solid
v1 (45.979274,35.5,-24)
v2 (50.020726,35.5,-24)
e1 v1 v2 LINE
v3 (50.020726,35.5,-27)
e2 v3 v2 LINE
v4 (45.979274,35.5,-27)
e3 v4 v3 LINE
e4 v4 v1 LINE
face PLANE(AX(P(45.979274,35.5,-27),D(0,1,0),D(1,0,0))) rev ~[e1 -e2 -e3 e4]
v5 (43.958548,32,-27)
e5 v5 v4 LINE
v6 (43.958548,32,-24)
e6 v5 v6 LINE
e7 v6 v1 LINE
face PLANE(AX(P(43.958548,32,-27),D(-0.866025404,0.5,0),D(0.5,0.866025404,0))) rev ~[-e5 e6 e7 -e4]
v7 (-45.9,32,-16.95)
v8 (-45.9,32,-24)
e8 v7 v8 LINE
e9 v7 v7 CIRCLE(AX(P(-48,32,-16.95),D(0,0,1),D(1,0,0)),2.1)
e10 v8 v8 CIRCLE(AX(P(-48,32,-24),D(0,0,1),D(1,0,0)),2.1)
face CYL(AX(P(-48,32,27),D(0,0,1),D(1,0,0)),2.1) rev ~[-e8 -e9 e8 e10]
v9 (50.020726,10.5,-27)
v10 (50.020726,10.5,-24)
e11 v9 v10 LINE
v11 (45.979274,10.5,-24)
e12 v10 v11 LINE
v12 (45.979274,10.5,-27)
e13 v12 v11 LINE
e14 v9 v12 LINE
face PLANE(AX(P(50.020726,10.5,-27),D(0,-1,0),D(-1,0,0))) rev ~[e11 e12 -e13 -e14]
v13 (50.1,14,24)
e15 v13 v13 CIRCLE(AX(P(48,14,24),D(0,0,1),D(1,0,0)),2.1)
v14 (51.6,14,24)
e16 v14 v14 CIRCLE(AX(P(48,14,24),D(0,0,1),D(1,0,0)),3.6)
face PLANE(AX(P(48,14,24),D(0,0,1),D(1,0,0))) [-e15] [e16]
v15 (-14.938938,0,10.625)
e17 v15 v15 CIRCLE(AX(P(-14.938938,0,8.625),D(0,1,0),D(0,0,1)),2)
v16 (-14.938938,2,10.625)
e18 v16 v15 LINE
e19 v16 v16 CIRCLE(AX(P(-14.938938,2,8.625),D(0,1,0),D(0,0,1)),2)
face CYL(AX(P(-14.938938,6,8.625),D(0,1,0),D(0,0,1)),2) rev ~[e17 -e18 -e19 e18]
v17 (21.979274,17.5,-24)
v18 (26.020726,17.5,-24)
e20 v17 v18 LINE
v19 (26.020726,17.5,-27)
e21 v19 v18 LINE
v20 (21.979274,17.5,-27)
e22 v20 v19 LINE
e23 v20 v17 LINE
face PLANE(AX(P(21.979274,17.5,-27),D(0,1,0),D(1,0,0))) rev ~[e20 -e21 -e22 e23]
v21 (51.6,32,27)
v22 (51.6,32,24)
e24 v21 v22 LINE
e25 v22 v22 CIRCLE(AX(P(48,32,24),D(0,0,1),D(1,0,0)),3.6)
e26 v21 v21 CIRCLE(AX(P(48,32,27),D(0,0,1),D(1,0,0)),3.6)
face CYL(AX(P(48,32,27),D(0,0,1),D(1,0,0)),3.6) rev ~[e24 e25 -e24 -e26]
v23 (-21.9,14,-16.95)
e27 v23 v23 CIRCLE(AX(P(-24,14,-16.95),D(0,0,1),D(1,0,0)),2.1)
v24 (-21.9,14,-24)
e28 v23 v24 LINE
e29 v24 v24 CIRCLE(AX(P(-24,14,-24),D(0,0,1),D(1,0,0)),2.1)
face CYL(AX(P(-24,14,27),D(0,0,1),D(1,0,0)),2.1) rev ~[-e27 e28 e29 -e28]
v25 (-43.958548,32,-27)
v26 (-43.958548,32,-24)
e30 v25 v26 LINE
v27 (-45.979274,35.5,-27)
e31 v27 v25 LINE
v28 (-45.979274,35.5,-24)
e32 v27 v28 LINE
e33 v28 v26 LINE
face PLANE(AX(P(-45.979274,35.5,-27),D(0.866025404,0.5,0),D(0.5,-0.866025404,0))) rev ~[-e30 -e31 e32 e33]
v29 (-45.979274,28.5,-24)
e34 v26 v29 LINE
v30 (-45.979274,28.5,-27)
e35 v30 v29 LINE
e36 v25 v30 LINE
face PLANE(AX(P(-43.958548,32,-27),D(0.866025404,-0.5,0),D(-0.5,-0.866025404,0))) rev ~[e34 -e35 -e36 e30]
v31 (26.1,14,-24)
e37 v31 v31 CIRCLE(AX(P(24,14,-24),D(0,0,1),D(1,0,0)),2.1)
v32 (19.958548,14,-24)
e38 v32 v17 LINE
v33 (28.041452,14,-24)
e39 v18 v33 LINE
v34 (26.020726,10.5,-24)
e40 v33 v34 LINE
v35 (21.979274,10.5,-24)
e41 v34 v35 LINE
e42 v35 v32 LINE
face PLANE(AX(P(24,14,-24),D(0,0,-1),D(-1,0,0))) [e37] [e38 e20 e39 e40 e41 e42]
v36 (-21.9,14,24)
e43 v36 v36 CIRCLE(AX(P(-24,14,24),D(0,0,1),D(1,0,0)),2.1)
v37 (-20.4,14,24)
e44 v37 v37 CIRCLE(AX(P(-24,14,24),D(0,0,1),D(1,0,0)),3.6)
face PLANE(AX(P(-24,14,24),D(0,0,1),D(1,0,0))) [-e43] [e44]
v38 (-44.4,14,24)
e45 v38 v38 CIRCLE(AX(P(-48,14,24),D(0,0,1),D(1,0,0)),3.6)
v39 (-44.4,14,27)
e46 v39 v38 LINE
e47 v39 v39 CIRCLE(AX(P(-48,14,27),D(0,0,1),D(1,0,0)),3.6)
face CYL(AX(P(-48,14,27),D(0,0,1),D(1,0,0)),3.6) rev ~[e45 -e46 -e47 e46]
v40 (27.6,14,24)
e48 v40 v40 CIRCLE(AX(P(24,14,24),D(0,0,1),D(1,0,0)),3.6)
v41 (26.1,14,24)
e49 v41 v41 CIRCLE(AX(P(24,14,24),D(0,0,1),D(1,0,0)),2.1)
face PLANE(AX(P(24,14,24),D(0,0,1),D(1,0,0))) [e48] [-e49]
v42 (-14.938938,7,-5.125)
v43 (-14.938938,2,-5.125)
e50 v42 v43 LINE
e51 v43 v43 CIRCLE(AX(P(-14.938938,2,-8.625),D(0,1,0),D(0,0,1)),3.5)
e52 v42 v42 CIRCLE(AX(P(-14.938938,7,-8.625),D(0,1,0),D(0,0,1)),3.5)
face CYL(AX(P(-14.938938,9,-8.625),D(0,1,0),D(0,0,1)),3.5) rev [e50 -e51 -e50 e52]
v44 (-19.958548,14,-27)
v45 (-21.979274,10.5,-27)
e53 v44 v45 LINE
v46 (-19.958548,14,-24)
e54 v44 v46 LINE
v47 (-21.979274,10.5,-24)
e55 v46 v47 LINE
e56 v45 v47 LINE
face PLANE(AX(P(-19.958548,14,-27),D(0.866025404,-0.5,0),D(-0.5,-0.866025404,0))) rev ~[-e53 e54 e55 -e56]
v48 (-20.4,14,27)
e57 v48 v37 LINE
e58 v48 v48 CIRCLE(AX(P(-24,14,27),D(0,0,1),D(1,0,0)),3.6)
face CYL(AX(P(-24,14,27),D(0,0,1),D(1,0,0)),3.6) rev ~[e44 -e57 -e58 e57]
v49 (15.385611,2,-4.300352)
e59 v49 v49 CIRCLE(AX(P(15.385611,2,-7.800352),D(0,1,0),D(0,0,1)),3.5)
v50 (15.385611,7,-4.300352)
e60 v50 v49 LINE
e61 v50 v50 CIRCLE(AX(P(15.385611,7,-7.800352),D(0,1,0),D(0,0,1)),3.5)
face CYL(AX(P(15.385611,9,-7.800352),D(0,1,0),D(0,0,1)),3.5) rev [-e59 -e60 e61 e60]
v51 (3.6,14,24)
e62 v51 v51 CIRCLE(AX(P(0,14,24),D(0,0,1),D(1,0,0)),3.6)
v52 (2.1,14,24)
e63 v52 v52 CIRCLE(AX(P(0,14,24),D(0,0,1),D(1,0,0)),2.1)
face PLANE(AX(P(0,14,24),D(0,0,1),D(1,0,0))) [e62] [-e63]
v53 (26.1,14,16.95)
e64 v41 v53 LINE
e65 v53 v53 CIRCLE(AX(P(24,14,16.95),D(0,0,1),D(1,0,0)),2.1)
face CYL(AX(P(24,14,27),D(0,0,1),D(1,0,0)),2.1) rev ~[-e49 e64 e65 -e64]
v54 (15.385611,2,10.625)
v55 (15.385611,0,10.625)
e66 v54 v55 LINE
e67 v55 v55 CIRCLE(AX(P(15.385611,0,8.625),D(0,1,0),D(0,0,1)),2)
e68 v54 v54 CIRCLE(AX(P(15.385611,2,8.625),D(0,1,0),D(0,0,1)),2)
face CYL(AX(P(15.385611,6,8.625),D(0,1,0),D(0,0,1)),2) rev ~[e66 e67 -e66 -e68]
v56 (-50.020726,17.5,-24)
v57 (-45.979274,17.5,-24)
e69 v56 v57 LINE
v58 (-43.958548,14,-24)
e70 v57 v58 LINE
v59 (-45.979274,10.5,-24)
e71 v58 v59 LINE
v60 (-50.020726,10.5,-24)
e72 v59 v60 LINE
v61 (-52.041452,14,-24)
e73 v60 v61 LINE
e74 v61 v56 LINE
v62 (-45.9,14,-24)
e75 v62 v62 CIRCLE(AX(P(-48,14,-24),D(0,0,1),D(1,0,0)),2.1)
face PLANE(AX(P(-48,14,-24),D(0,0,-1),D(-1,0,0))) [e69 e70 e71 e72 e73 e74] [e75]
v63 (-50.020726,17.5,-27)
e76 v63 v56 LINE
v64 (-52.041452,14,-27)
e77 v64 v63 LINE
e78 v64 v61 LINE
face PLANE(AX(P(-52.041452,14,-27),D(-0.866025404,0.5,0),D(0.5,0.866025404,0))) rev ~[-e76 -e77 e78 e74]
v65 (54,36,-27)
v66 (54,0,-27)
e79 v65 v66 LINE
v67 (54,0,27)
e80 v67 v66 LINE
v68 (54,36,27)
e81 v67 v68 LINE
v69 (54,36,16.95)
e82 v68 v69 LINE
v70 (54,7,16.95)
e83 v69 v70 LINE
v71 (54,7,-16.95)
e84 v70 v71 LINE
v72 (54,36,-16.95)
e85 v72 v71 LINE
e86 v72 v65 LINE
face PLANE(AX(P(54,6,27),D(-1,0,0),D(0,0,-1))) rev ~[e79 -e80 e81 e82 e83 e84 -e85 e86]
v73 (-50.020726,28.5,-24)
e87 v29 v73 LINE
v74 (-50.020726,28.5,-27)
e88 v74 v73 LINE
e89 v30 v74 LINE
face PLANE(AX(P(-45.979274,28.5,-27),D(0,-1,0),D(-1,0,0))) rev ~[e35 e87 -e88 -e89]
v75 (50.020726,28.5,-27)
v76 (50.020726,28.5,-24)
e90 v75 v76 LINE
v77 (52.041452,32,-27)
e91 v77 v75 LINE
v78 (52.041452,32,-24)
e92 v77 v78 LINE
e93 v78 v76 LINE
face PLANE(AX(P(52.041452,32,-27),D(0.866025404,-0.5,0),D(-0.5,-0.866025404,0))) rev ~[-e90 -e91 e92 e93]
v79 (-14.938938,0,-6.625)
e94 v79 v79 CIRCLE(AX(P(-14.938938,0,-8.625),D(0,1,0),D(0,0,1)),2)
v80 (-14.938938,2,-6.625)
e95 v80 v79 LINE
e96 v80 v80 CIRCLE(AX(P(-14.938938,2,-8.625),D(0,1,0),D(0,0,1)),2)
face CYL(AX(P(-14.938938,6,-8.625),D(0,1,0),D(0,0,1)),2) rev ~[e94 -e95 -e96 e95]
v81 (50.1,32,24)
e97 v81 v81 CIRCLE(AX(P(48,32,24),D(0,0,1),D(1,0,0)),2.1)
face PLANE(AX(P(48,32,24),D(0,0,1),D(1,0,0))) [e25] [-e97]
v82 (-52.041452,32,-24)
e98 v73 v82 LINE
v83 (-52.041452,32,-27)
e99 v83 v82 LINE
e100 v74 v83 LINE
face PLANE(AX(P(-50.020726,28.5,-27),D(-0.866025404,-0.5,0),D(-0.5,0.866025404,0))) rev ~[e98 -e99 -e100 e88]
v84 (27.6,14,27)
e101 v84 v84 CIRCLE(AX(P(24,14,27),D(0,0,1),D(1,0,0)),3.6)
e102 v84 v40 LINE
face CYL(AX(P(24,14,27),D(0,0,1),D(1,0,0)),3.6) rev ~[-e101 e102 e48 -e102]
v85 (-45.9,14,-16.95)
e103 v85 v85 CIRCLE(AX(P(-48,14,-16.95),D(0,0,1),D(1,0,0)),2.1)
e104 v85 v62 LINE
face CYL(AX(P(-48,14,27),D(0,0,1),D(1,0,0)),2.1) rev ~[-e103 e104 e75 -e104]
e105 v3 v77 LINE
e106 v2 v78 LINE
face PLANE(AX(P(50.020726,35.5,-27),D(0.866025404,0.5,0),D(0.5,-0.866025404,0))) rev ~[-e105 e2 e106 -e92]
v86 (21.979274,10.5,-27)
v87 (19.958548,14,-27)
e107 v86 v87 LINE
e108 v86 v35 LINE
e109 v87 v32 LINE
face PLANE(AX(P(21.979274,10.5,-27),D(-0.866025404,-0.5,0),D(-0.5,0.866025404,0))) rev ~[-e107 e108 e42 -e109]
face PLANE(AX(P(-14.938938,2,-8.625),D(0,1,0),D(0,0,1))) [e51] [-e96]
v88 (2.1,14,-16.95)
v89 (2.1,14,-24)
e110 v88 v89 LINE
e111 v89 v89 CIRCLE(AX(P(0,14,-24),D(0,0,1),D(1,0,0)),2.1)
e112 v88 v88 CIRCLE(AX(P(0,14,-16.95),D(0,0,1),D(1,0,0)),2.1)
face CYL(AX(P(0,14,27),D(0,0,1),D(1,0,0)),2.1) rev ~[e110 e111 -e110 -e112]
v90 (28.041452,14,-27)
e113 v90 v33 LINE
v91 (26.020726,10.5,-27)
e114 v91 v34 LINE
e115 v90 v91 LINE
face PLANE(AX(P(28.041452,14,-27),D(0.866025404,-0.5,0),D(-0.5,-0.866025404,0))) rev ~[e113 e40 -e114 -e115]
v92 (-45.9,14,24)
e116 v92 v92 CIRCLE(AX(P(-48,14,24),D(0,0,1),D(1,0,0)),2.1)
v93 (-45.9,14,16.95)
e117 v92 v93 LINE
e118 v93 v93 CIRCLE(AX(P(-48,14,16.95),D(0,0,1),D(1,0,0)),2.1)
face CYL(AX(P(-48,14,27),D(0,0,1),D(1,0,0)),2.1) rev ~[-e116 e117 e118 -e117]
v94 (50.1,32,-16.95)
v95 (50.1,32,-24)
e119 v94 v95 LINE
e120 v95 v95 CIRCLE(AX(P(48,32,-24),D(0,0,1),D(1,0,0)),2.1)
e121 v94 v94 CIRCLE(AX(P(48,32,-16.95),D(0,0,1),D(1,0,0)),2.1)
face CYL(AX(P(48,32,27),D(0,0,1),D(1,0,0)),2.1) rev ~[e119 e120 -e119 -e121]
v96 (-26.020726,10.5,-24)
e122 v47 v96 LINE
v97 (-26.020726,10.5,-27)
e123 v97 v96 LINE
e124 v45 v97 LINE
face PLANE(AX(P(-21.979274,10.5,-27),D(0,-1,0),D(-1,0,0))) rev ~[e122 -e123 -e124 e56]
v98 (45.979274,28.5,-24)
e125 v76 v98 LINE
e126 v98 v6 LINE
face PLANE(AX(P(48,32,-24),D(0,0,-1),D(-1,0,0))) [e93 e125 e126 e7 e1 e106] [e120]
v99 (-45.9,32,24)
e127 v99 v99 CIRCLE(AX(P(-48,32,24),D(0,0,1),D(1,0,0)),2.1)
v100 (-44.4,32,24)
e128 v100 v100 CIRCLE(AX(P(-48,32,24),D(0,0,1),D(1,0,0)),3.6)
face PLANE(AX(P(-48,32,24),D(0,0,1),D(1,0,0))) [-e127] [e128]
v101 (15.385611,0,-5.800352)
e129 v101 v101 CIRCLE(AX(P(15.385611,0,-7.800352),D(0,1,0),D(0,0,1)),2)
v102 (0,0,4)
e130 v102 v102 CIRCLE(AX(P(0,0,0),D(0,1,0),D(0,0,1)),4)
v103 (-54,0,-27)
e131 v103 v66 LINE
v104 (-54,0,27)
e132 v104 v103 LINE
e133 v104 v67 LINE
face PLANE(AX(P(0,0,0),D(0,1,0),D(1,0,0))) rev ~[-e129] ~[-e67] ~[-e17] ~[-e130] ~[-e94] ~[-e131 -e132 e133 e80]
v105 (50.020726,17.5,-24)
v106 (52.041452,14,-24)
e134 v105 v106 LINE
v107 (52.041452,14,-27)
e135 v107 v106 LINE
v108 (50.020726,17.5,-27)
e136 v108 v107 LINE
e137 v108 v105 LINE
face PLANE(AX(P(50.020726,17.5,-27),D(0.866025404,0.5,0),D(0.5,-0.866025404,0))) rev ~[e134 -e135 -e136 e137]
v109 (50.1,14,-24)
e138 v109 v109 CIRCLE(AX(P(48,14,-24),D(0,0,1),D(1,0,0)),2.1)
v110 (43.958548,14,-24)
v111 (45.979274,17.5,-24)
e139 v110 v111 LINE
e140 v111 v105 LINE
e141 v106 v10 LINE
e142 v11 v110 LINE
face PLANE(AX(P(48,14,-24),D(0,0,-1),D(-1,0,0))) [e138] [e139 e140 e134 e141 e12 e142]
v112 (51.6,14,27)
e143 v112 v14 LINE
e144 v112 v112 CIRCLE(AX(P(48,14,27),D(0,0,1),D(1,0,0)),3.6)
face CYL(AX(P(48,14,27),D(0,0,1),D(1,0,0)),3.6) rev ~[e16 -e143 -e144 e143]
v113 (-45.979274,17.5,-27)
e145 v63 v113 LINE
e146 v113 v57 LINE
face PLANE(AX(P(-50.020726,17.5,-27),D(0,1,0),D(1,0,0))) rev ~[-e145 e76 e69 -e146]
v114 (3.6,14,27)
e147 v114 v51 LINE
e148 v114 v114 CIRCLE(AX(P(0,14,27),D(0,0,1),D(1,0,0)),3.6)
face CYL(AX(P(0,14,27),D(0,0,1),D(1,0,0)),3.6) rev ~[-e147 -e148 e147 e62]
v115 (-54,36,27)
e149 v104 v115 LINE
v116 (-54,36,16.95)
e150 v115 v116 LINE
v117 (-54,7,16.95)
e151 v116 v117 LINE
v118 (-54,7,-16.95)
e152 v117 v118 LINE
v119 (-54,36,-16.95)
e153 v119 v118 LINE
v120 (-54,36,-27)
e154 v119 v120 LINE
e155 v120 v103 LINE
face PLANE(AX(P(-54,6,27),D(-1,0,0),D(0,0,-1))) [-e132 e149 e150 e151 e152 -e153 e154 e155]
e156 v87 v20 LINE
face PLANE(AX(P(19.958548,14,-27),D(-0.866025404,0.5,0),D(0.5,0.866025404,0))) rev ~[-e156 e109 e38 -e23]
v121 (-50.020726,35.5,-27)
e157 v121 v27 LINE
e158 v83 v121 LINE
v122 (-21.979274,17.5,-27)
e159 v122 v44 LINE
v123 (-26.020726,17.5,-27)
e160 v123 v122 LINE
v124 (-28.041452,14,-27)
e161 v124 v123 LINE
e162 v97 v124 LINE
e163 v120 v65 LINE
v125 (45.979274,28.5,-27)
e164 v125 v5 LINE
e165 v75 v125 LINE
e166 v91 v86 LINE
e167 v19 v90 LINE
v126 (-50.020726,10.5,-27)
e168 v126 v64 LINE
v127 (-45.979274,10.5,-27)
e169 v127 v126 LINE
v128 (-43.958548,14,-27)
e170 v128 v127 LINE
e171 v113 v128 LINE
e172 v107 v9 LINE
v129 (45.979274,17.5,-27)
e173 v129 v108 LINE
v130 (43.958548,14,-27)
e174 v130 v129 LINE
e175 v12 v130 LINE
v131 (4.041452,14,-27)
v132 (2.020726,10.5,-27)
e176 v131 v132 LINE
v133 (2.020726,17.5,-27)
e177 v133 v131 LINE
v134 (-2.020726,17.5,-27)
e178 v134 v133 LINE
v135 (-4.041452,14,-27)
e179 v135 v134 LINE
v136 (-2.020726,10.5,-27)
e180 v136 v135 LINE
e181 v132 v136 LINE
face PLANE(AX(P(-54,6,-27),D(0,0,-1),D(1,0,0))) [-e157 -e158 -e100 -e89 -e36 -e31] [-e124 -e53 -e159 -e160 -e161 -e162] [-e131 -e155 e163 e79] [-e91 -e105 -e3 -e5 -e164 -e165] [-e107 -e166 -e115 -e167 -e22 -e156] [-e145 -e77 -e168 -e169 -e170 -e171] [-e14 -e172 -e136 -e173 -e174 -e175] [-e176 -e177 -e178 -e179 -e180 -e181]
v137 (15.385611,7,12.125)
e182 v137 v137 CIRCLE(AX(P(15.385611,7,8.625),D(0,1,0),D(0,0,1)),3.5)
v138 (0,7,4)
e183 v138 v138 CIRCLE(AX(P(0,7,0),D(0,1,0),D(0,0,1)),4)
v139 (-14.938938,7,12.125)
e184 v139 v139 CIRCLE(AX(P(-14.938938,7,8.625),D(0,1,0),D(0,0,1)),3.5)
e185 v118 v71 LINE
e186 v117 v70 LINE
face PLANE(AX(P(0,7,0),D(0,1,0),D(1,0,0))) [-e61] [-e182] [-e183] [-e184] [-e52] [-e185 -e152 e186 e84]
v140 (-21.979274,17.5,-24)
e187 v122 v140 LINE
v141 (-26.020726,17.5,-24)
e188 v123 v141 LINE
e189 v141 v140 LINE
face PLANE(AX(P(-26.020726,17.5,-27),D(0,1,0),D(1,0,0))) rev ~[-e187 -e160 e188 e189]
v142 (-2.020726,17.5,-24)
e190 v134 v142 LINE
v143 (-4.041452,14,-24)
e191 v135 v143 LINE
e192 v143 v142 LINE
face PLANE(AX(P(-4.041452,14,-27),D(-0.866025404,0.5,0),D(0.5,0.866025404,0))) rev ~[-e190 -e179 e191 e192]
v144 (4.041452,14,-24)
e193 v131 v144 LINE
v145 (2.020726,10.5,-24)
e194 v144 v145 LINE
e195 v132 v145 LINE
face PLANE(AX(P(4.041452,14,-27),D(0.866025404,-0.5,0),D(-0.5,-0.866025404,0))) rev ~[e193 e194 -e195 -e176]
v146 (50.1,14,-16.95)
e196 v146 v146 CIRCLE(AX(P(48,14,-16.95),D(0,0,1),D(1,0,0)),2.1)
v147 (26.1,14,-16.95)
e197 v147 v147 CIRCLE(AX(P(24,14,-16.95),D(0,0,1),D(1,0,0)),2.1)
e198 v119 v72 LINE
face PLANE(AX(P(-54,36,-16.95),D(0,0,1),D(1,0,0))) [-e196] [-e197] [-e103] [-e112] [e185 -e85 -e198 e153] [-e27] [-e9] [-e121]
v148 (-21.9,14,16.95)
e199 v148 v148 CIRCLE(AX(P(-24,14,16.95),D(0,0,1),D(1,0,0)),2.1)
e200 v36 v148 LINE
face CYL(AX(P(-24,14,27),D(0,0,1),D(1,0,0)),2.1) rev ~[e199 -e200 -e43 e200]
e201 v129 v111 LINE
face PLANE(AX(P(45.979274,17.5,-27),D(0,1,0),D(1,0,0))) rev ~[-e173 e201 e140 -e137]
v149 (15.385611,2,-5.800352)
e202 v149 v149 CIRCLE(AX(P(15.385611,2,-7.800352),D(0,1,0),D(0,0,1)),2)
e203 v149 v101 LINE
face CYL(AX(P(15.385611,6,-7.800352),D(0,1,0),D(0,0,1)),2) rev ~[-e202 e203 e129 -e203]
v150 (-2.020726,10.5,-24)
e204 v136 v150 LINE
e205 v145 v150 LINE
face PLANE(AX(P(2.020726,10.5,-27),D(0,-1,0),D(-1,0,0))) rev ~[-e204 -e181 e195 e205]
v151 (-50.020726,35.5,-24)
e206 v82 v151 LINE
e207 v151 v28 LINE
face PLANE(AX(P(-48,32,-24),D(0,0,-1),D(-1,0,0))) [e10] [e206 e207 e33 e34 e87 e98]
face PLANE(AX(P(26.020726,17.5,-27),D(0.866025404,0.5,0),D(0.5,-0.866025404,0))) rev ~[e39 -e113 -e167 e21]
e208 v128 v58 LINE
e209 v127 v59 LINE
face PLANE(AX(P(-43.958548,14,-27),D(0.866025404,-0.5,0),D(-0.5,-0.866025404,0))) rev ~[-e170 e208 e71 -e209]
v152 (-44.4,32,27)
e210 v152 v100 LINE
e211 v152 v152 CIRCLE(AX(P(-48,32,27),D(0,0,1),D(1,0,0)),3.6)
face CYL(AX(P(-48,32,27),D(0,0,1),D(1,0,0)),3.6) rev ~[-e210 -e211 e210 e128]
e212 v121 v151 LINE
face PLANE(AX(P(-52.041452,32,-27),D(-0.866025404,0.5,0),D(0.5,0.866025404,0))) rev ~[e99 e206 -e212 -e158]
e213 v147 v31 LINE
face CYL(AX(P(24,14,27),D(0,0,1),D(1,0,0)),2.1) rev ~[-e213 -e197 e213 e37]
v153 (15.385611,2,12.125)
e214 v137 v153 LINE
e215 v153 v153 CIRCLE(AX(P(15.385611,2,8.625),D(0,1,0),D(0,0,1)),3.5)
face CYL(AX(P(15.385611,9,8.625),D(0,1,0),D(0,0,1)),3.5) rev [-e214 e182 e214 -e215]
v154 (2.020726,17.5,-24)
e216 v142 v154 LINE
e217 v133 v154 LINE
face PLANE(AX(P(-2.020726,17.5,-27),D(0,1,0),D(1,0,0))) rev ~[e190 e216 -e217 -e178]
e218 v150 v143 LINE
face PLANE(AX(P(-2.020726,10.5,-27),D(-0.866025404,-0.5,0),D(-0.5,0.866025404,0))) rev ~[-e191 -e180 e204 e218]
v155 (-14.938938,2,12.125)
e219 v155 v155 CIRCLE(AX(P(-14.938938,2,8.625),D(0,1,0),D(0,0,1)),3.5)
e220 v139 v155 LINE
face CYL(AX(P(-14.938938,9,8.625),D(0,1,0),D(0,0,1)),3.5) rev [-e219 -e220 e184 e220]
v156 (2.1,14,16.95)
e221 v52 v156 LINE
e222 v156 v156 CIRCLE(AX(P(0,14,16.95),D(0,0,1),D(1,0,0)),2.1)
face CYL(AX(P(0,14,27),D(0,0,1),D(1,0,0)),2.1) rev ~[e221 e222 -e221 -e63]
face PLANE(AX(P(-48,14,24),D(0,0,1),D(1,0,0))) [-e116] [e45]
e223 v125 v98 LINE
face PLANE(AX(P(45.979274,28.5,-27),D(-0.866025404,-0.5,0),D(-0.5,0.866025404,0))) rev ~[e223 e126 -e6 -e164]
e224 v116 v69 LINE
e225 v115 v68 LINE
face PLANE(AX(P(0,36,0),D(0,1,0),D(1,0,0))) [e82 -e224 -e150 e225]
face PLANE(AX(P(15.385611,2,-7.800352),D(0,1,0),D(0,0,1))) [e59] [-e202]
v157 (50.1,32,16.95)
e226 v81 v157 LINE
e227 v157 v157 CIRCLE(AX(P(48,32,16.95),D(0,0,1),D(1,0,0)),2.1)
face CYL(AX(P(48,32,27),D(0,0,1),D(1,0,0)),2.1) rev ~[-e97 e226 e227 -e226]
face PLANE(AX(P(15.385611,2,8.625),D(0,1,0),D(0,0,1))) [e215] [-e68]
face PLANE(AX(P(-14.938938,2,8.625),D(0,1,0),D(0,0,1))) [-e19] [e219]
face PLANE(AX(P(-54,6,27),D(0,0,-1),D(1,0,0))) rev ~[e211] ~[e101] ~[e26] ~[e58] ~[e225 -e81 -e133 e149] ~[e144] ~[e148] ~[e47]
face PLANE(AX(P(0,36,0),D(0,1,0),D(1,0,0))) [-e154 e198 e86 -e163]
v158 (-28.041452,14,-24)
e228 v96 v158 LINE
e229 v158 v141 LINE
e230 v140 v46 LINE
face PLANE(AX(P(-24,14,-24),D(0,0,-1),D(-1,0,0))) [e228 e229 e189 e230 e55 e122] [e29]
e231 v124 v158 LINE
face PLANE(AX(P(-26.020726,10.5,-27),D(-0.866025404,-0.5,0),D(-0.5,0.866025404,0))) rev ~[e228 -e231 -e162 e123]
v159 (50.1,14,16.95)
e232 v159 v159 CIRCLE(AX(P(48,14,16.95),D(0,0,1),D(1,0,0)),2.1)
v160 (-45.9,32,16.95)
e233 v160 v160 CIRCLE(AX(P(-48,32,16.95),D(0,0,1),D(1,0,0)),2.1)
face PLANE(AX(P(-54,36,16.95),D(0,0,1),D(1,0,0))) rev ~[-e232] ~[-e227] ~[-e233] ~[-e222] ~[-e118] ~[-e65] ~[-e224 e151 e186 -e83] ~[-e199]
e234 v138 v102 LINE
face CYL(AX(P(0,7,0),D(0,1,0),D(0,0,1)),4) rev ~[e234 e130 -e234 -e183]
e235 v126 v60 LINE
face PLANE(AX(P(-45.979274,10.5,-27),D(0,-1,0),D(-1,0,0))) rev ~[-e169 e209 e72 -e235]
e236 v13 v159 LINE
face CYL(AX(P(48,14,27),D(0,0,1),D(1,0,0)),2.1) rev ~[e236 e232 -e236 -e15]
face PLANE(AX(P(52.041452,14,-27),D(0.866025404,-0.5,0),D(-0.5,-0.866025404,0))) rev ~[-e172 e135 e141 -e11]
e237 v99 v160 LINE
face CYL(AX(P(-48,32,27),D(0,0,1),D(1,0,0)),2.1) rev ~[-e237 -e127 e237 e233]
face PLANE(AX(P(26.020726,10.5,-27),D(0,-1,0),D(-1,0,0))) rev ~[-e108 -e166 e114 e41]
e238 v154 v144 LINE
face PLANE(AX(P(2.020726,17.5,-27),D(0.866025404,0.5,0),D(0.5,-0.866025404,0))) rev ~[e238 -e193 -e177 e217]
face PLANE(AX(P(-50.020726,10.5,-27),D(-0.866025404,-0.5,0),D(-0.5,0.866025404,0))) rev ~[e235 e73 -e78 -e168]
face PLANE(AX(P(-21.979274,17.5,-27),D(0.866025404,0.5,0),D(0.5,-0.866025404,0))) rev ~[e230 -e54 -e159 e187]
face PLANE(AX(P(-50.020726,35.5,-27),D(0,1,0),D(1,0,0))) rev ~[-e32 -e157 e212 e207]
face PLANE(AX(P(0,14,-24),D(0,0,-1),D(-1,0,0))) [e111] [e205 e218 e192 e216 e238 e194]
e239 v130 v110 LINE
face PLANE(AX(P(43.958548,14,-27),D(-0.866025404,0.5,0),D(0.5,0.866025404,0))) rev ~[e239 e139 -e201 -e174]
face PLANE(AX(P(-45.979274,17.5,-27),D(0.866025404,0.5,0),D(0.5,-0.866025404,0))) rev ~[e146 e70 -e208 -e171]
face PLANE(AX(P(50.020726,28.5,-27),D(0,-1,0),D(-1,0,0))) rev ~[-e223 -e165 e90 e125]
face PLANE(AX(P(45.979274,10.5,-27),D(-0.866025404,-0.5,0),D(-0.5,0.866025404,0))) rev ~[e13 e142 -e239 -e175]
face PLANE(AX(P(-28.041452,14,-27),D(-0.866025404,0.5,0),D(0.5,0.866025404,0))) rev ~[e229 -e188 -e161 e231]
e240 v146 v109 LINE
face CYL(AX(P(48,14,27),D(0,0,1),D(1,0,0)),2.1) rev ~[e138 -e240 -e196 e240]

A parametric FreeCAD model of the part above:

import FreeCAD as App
import Part
import Sketcher

V = App.Vector
Q = App.Units.Quantity

doc = App.newDocument("Part")
body = doc.addObject("PartDesign::Body", "Body")

# Sketch on XZ plane
sketch1 = doc.addObject("Sketcher::SketchObject", "Sketch")
body.addObject(sketch1)
sketch1.AttachmentSupport = (doc.XZ_Plane, [""])
sketch1.MapMode = "FlatFace"
sketch1.addGeometry([
    Part.LineSegment(V(-54, -27, 0), V(-54, 27, 0)),
    Part.LineSegment(V(-54, 27, 0), V(54, 27, 0)),
    Part.LineSegment(V(54, 27, 0), V(54, -27, 0)),
    Part.LineSegment(V(54, -27, 0), V(-54, -27, 0)),
], False)
sketch1.addConstraint([
    Sketcher.Constraint("Coincident", 0, 2, 1, 1),
    Sketcher.Constraint("Coincident", 1, 2, 2, 1),
    Sketcher.Constraint("Coincident", 2, 2, 3, 1),
    Sketcher.Constraint("Coincident", 3, 2, 0, 1),
    Sketcher.Constraint("Vertical", 0),
    Sketcher.Constraint("Horizontal", 1),
    Sketcher.Constraint("Vertical", 2),
    Sketcher.Constraint("Horizontal", 3),
    Sketcher.Constraint("Symmetric", 0, 2, 2, 2, -1, 1),
    Sketcher.Constraint("DistanceX", 1, 1, 1, 2, Q("108 mm")),
    Sketcher.Constraint("DistanceY", 0, 1, 0, 2, Q("54 mm")),
])
pad1 = doc.addObject("PartDesign::Pad", "Pad")
body.addObject(pad1)
pad1.Profile = sketch1
pad1.Length = 6
pad1.Reversed = True

# Sketch on XZ plane
sketch2 = doc.addObject("Sketcher::SketchObject", "Sketch001")
body.addObject(sketch2)
sketch2.AttachmentSupport = (doc.XZ_Plane, [""])
sketch2.MapMode = "FlatFace"
sketch2.AttachmentOffset = App.Placement(V(0, 0, -6), App.Rotation())
sketch2.addGeometry([
    Part.Circle(V(-14.9, -8.6, 0), V(0, 0, 1), 2),
    Part.Circle(V(-14.9, 8.6, 0), V(0, 0, 1), 2),
    Part.Circle(V(15.4, -7.8, 0), V(0, 0, 1), 2),
    Part.Circle(V(15.4, 8.6, 0), V(0, 0, 1), 2),
], False)
sketch2.addConstraint([
    Sketcher.Constraint("Equal", 0, 1),
    Sketcher.Constraint("Equal", 1, 2),
    Sketcher.Constraint("Equal", 2, 3),
    Sketcher.Constraint("Symmetric", 0, 3, 1, 3, -1),
    Sketcher.Constraint("Horizontal", 1, 3, 3, 3),
    Sketcher.Constraint("Vertical", 2, 3, 3, 3),
    Sketcher.Constraint("Diameter", 0, Q("4 mm")),
    Sketcher.Constraint("DistanceY", 0, 3, 1, 3, Q("17.25 mm")),
    Sketcher.Constraint("DistanceX", 0, 3, -1, 1, Q("14.938938 mm")),
    Sketcher.Constraint("DistanceX", -1, 1, 2, 3, Q("15.385611 mm")),
    Sketcher.Constraint("DistanceY", 2, 3, -1, 1, Q("7.800352 mm")),
])
pocket1 = doc.addObject("PartDesign::Pocket", "Pocket")
body.addObject(pocket1)
pocket1.Profile = sketch2
pocket1.Length = 12
pocket1.Reversed = True

# Sketch on XZ plane
sketch3 = doc.addObject("Sketcher::SketchObject", "Sketch002")
body.addObject(sketch3)
sketch3.AttachmentSupport = (doc.XZ_Plane, [""])
sketch3.MapMode = "FlatFace"
sketch3.AttachmentOffset = App.Placement(V(0, 0, -6), App.Rotation())
sketch3.addGeometry([
    Part.Circle(V(-14.9, -8.6, 0), V(0, 0, 1), 3.5),
    Part.Circle(V(-14.9, 8.6, 0), V(0, 0, 1), 3.5),
    Part.Circle(V(15.4, -7.8, 0), V(0, 0, 1), 3.5),
    Part.Circle(V(15.4, 8.6, 0), V(0, 0, 1), 3.5),
], False)
sketch3.addConstraint([
    Sketcher.Constraint("Equal", 0, 1),
    Sketcher.Constraint("Equal", 1, 2),
    Sketcher.Constraint("Equal", 2, 3),
    Sketcher.Constraint("Symmetric", 0, 3, 1, 3, -1),
    Sketcher.Constraint("Horizontal", 1, 3, 3, 3),
    Sketcher.Constraint("Vertical", 2, 3, 3, 3),
    Sketcher.Constraint("Diameter", 0, Q("7 mm")),
    Sketcher.Constraint("DistanceY", 0, 3, 1, 3, Q("17.25 mm")),
    Sketcher.Constraint("DistanceX", 0, 3, -1, 1, Q("14.938938 mm")),
    Sketcher.Constraint("DistanceX", -1, 1, 2, 3, Q("15.385611 mm")),
    Sketcher.Constraint("DistanceY", 2, 3, -1, 1, Q("7.800352 mm")),
])
pocket2 = doc.addObject("PartDesign::Pocket", "Pocket001")
body.addObject(pocket2)
pocket2.Profile = sketch3
pocket2.Length = 4
pocket2.Reversed = True

# Sketch on XZ plane
sketch4 = doc.addObject("Sketcher::SketchObject", "Sketch003")
body.addObject(sketch4)
sketch4.AttachmentSupport = (doc.XZ_Plane, [""])
sketch4.MapMode = "FlatFace"
sketch4.AttachmentOffset = App.Placement(V(0, 0, -6), App.Rotation())
sketch4.addGeometry([
    Part.LineSegment(V(-54, -27, 0), V(-54, 27, 0)),
    Part.LineSegment(V(-54, 27, 0), V(54, 27, 0)),
    Part.LineSegment(V(54, 27, 0), V(54, -27, 0)),
    Part.LineSegment(V(54, -27, 0), V(-54, -27, 0)),
], False)
sketch4.addConstraint([
    Sketcher.Constraint("Coincident", 0, 2, 1, 1),
    Sketcher.Constraint("Coincident", 1, 2, 2, 1),
    Sketcher.Constraint("Coincident", 2, 2, 3, 1),
    Sketcher.Constraint("Coincident", 3, 2, 0, 1),
    Sketcher.Constraint("Vertical", 0),
    Sketcher.Constraint("Horizontal", 1),
    Sketcher.Constraint("Vertical", 2),
    Sketcher.Constraint("Horizontal", 3),
    Sketcher.Constraint("Symmetric", 0, 2, 2, 2, -1, 1),
    Sketcher.Constraint("DistanceX", 1, 1, 1, 2, Q("108 mm")),
    Sketcher.Constraint("DistanceY", 0, 1, 0, 2, Q("54 mm")),
])
pad2 = doc.addObject("PartDesign::Pad", "Pad001")
body.addObject(pad2)
pad2.Profile = sketch4
pad2.Length = 30
pad2.Reversed = True

# Sketch on XZ plane
sketch5 = doc.addObject("Sketcher::SketchObject", "Sketch004")
body.addObject(sketch5)
sketch5.AttachmentSupport = (doc.XZ_Plane, [""])
sketch5.MapMode = "FlatFace"
sketch5.AttachmentOffset = App.Placement(V(0, 0, -36), App.Rotation())
sketch5.addGeometry([
    Part.LineSegment(V(-54, -17, 0), V(-54, 17, 0)),
    Part.LineSegment(V(-54, 17, 0), V(54, 17, 0)),
    Part.LineSegment(V(54, 17, 0), V(54, -17, 0)),
    Part.LineSegment(V(54, -17, 0), V(-54, -17, 0)),
], False)
sketch5.addConstraint([
    Sketcher.Constraint("Coincident", 0, 2, 1, 1),
    Sketcher.Constraint("Coincident", 1, 2, 2, 1),
    Sketcher.Constraint("Coincident", 2, 2, 3, 1),
    Sketcher.Constraint("Coincident", 3, 2, 0, 1),
    Sketcher.Constraint("Vertical", 0),
    Sketcher.Constraint("Horizontal", 1),
    Sketcher.Constraint("Vertical", 2),
    Sketcher.Constraint("Horizontal", 3),
    Sketcher.Constraint("Symmetric", 0, 2, 2, 2, -1, 1),
    Sketcher.Constraint("DistanceX", 1, 1, 1, 2, Q("108 mm")),
    Sketcher.Constraint("DistanceY", 0, 1, 0, 2, Q("33.9 mm")),
])
pocket3 = doc.addObject("PartDesign::Pocket", "Pocket002")
body.addObject(pocket3)
pocket3.Profile = sketch5
pocket3.Length = 29
pocket3.Reversed = True

# Sketch on XY plane
sketch6 = doc.addObject("Sketcher::SketchObject", "Sketch005")
body.addObject(sketch6)
sketch6.AttachmentSupport = (doc.XY_Plane, [""])
sketch6.MapMode = "FlatFace"
sketch6.AttachmentOffset = App.Placement(V(0, 0, 27), App.Rotation())
sketch6.addGeometry([
    Part.Circle(V(0, 14, 0), V(0, 0, 1), 2.1),  # 0
    Part.Circle(V(-24, 14, 0), V(0, 0, 1), 2.1),  # 1
    Part.Circle(V(-48, 14, 0), V(0, 0, 1), 2.1),  # 2
    Part.Circle(V(24, 14, 0), V(0, 0, 1), 2.1),  # 3
    Part.Circle(V(48, 14, 0), V(0, 0, 1), 2.1),  # 4
    Part.Circle(V(48, 32, 0), V(0, 0, 1), 2.1),  # 5
    Part.Circle(V(-48, 32, 0), V(0, 0, 1), 2.1),  # 6
], False)
sketch6.addConstraint([
    Sketcher.Constraint("Equal", 0, 1),
    Sketcher.Constraint("Equal", 1, 2),
    Sketcher.Constraint("Equal", 2, 3),
    Sketcher.Constraint("Equal", 3, 4),
    Sketcher.Constraint("Equal", 4, 5),
    Sketcher.Constraint("Equal", 5, 6),
    Sketcher.Constraint("Symmetric", 1, 3, 3, 3, -2),
    Sketcher.Constraint("Symmetric", 2, 3, 4, 3, -2),
    Sketcher.Constraint("Symmetric", 5, 3, 6, 3, -2),
    Sketcher.Constraint("PointOnObject", 0, 3, -2),
    Sketcher.Constraint("Horizontal", 0, 3, 1, 3),
    Sketcher.Constraint("Horizontal", 1, 3, 2, 3),
    Sketcher.Constraint("Vertical", 4, 3, 5, 3),
    Sketcher.Constraint("Diameter", 0, Q("4.2 mm")),
    Sketcher.Constraint("DistanceY", -1, 1, 0, 3, Q("14 mm")),
    Sketcher.Constraint("DistanceX", 1, 3, -1, 1, Q("24 mm")),
    Sketcher.Constraint("DistanceX", 2, 3, -1, 1, Q("48 mm")),
    Sketcher.Constraint("DistanceY", -1, 1, 5, 3, Q("32 mm")),
])
pocket4 = doc.addObject("PartDesign::Pocket", "Pocket003")
body.addObject(pocket4)
pocket4.Profile = sketch6
pocket4.Length = 67

# Sketch on XY plane
sketch7 = doc.addObject("Sketcher::SketchObject", "Sketch006")
body.addObject(sketch7)
sketch7.AttachmentSupport = (doc.XY_Plane, [""])
sketch7.MapMode = "FlatFace"
sketch7.AttachmentOffset = App.Placement(V(0, 0, 27), App.Rotation())
sketch7.addGeometry([
    Part.Circle(V(-48, 32, 0), V(0, 0, 1), 3.6),  # 0
    Part.Circle(V(-48, 14, 0), V(0, 0, 1), 3.6),  # 1
    Part.Circle(V(-24, 14, 0), V(0, 0, 1), 3.6),  # 2
    Part.Circle(V(0, 14, 0), V(0, 0, 1), 3.6),  # 3
    Part.Circle(V(24, 14, 0), V(0, 0, 1), 3.6),  # 4
    Part.Circle(V(48, 14, 0), V(0, 0, 1), 3.6),  # 5
    Part.Circle(V(48, 32, 0), V(0, 0, 1), 3.6),  # 6
], False)
sketch7.addConstraint([
    Sketcher.Constraint("Equal", 0, 1),
    Sketcher.Constraint("Equal", 1, 2),
    Sketcher.Constraint("Equal", 2, 3),
    Sketcher.Constraint("Equal", 3, 4),
    Sketcher.Constraint("Equal", 4, 5),
    Sketcher.Constraint("Equal", 5, 6),
    Sketcher.Constraint("Symmetric", 2, 3, 4, 3, -2),
    Sketcher.Constraint("Symmetric", 1, 3, 5, 3, -2),
    Sketcher.Constraint("Symmetric", 0, 3, 6, 3, -2),
    Sketcher.Constraint("PointOnObject", 3, 3, -2),
    Sketcher.Constraint("Horizontal", 1, 3, 2, 3),
    Sketcher.Constraint("Horizontal", 2, 3, 3, 3),
    Sketcher.Constraint("Vertical", 0, 3, 1, 3),
    Sketcher.Constraint("Diameter", 0, Q("7.2 mm")),
    Sketcher.Constraint("DistanceX", 0, 3, -1, 1, Q("48 mm")),
    Sketcher.Constraint("DistanceY", -1, 1, 0, 3, Q("32 mm")),
    Sketcher.Constraint("DistanceY", -1, 1, 1, 3, Q("14 mm")),
    Sketcher.Constraint("DistanceX", 2, 3, -1, 1, Q("24 mm")),
])
pocket5 = doc.addObject("PartDesign::Pocket", "Pocket004")
body.addObject(pocket5)
pocket5.Profile = sketch7
pocket5.Length = 3

# Sketch on XY plane
sketch8 = doc.addObject("Sketcher::SketchObject", "Sketch007")
body.addObject(sketch8)
sketch8.AttachmentSupport = (doc.XY_Plane, [""])
sketch8.MapMode = "FlatFace"
sketch8.AttachmentOffset = App.Placement(V(0, 0, -27), App.Rotation())
sketch8.addGeometry([
    Part.LineSegment(V(50, 28.5, 0), V(46, 28.5, 0)),  # 0
    Part.LineSegment(V(46, 28.5, 0), V(44, 32, 0)),  # 1
    Part.LineSegment(V(44, 32, 0), V(46, 35.5, 0)),  # 2
    Part.LineSegment(V(46, 35.5, 0), V(50, 35.5, 0)),  # 3
    Part.LineSegment(V(50, 35.5, 0), V(52, 32, 0)),  # 4
    Part.LineSegment(V(52, 32, 0), V(50, 28.5, 0)),  # 5
    Part.LineSegment(V(50, 10.5, 0), V(46, 10.5, 0)),  # 6
    Part.LineSegment(V(46, 10.5, 0), V(44, 14, 0)),  # 7
    Part.LineSegment(V(44, 14, 0), V(46, 17.5, 0)),  # 8
    Part.LineSegment(V(46, 17.5, 0), V(50, 17.5, 0)),  # 9
    Part.LineSegment(V(50, 17.5, 0), V(52, 14, 0)),  # 10
    Part.LineSegment(V(52, 14, 0), V(50, 10.5, 0)),  # 11
    Part.LineSegment(V(26, 10.5, 0), V(22, 10.5, 0)),  # 12
    Part.LineSegment(V(22, 10.5, 0), V(20, 14, 0)),  # 13
    Part.LineSegment(V(20, 14, 0), V(22, 17.5, 0)),  # 14
    Part.LineSegment(V(22, 17.5, 0), V(26, 17.5, 0)),  # 15
    Part.LineSegment(V(26, 17.5, 0), V(28, 14, 0)),  # 16
    Part.LineSegment(V(28, 14, 0), V(26, 10.5, 0)),  # 17
    Part.LineSegment(V(2, 10.5, 0), V(-2, 10.5, 0)),  # 18
    Part.LineSegment(V(-2, 10.5, 0), V(-4, 14, 0)),  # 19
    Part.LineSegment(V(-4, 14, 0), V(-2, 17.5, 0)),  # 20
    Part.LineSegment(V(-2, 17.5, 0), V(2, 17.5, 0)),  # 21
    Part.LineSegment(V(2, 17.5, 0), V(4, 14, 0)),  # 22
    Part.LineSegment(V(4, 14, 0), V(2, 10.5, 0)),  # 23
    Part.LineSegment(V(-22, 10.5, 0), V(-26, 10.5, 0)),  # 24
    Part.LineSegment(V(-26, 10.5, 0), V(-28, 14, 0)),  # 25
    Part.LineSegment(V(-28, 14, 0), V(-26, 17.5, 0)),  # 26
    Part.LineSegment(V(-26, 17.5, 0), V(-22, 17.5, 0)),  # 27
    Part.LineSegment(V(-22, 17.5, 0), V(-20, 14, 0)),  # 28
    Part.LineSegment(V(-20, 14, 0), V(-22, 10.5, 0)),  # 29
    Part.LineSegment(V(-46, 10.5, 0), V(-50, 10.5, 0)),  # 30
    Part.LineSegment(V(-50, 10.5, 0), V(-52, 14, 0)),  # 31
    Part.LineSegment(V(-52, 14, 0), V(-50, 17.5, 0)),  # 32
    Part.LineSegment(V(-50, 17.5, 0), V(-46, 17.5, 0)),  # 33
    Part.LineSegment(V(-46, 17.5, 0), V(-44, 14, 0)),  # 34
    Part.LineSegment(V(-44, 14, 0), V(-46, 10.5, 0)),  # 35
    Part.LineSegment(V(-46, 28.5, 0), V(-50, 28.5, 0)),  # 36
    Part.LineSegment(V(-50, 28.5, 0), V(-52, 32, 0)),  # 37
    Part.LineSegment(V(-52, 32, 0), V(-50, 35.5, 0)),  # 38
    Part.LineSegment(V(-50, 35.5, 0), V(-46, 35.5, 0)),  # 39
    Part.LineSegment(V(-46, 35.5, 0), V(-44, 32, 0)),  # 40
    Part.LineSegment(V(-44, 32, 0), V(-46, 28.5, 0)),  # 41
], False)
sketch8.addConstraint([
    Sketcher.Constraint("Coincident", 0, 2, 1, 1),
    Sketcher.Constraint("Coincident", 1, 2, 2, 1),
    Sketcher.Constraint("Coincident", 2, 2, 3, 1),
    Sketcher.Constraint("Coincident", 3, 2, 4, 1),
    Sketcher.Constraint("Coincident", 4, 2, 5, 1),
    Sketcher.Constraint("Coincident", 5, 2, 0, 1),
    Sketcher.Constraint("Coincident", 6, 2, 7, 1),
    Sketcher.Constraint("Coincident", 7, 2, 8, 1),
    Sketcher.Constraint("Coincident", 8, 2, 9, 1),
    Sketcher.Constraint("Coincident", 9, 2, 10, 1),
    Sketcher.Constraint("Coincident", 10, 2, 11, 1),
    Sketcher.Constraint("Coincident", 11, 2, 6, 1),
    Sketcher.Constraint("Coincident", 12, 2, 13, 1),
    Sketcher.Constraint("Coincident", 13, 2, 14, 1),
    Sketcher.Constraint("Coincident", 14, 2, 15, 1),
    Sketcher.Constraint("Coincident", 15, 2, 16, 1),
    Sketcher.Constraint("Coincident", 16, 2, 17, 1),
    Sketcher.Constraint("Coincident", 17, 2, 12, 1),
    Sketcher.Constraint("Coincident", 18, 2, 19, 1),
    Sketcher.Constraint("Coincident", 19, 2, 20, 1),
    Sketcher.Constraint("Coincident", 20, 2, 21, 1),
    Sketcher.Constraint("Coincident", 21, 2, 22, 1),
    Sketcher.Constraint("Coincident", 22, 2, 23, 1),
    Sketcher.Constraint("Coincident", 23, 2, 18, 1),
    Sketcher.Constraint("Coincident", 24, 2, 25, 1),
    Sketcher.Constraint("Coincident", 25, 2, 26, 1),
    Sketcher.Constraint("Coincident", 26, 2, 27, 1),
    Sketcher.Constraint("Coincident", 27, 2, 28, 1),
    Sketcher.Constraint("Coincident", 28, 2, 29, 1),
    Sketcher.Constraint("Coincident", 29, 2, 24, 1),
    Sketcher.Constraint("Coincident", 30, 2, 31, 1),
    Sketcher.Constraint("Coincident", 31, 2, 32, 1),
    Sketcher.Constraint("Coincident", 32, 2, 33, 1),
    Sketcher.Constraint("Coincident", 33, 2, 34, 1),
    Sketcher.Constraint("Coincident", 34, 2, 35, 1),
    Sketcher.Constraint("Coincident", 35, 2, 30, 1),
    Sketcher.Constraint("Coincident", 36, 2, 37, 1),
    Sketcher.Constraint("Coincident", 37, 2, 38, 1),
    Sketcher.Constraint("Coincident", 38, 2, 39, 1),
    Sketcher.Constraint("Coincident", 39, 2, 40, 1),
    Sketcher.Constraint("Coincident", 40, 2, 41, 1),
    Sketcher.Constraint("Coincident", 41, 2, 36, 1),
    Sketcher.Constraint("Horizontal", 0),
    Sketcher.Constraint("Horizontal", 3),
    Sketcher.Constraint("Horizontal", 6),
    Sketcher.Constraint("Horizontal", 9),
    Sketcher.Constraint("Horizontal", 12),
    Sketcher.Constraint("Horizontal", 15),
    Sketcher.Constraint("Horizontal", 18),
    Sketcher.Constraint("Horizontal", 21),
    Sketcher.Constraint("Horizontal", 24),
    Sketcher.Constraint("Horizontal", 27),
    Sketcher.Constraint("Horizontal", 30),
    Sketcher.Constraint("Horizontal", 33),
    Sketcher.Constraint("Horizontal", 36),
    Sketcher.Constraint("Horizontal", 39),
    Sketcher.Constraint("Symmetric", 19, 2, 22, 2, -2),
    Sketcher.Constraint("Symmetric", 17, 2, 24, 2, -2),
    Sketcher.Constraint("Symmetric", 16, 2, 25, 2, -2),
    Sketcher.Constraint("Symmetric", 15, 2, 26, 2, -2),
    Sketcher.Constraint("Symmetric", 13, 2, 28, 2, -2),
    Sketcher.Constraint("Symmetric", 11, 2, 30, 2, -2),
    Sketcher.Constraint("Symmetric", 10, 2, 31, 2, -2),
    Sketcher.Constraint("Symmetric", 9, 2, 32, 2, -2),
    Sketcher.Constraint("Symmetric", 7, 2, 34, 2, -2),
    Sketcher.Constraint("Symmetric", 5, 2, 36, 2, -2),
    Sketcher.Constraint("Symmetric", 4, 2, 37, 2, -2),
    Sketcher.Constraint("Symmetric", 3, 2, 38, 2, -2),
    Sketcher.Constraint("Symmetric", 1, 2, 40, 2, -2),
    Sketcher.Constraint("Parallel", 1, 4),
    Sketcher.Constraint("Parallel", 2, 5),
    Sketcher.Constraint("Parallel", 4, 7),
    Sketcher.Constraint("Parallel", 5, 8),
    Sketcher.Constraint("Parallel", 7, 10),
    Sketcher.Constraint("Parallel", 8, 11),
    Sketcher.Constraint("Parallel", 10, 13),
    Sketcher.Constraint("Parallel", 11, 14),
    Sketcher.Constraint("Parallel", 13, 16),
    Sketcher.Constraint("Parallel", 14, 17),
    Sketcher.Constraint("Parallel", 16, 19),
    Sketcher.Constraint("Parallel", 17, 20),
    Sketcher.Constraint("Parallel", 19, 22),
    Sketcher.Constraint("Parallel", 20, 23),
    Sketcher.Constraint("Parallel", 22, 25),
    Sketcher.Constraint("Parallel", 25, 28),
    Sketcher.Constraint("Parallel", 26, 29),
    Sketcher.Constraint("Parallel", 31, 34),
    Sketcher.Constraint("Parallel", 32, 35),
    Sketcher.Constraint("Parallel", 37, 40),
    Sketcher.Constraint("Parallel", 38, 41),
    Sketcher.Constraint("Horizontal", 1, 2, 4, 2),
    Sketcher.Constraint("Horizontal", 7, 2, 10, 2),
    Sketcher.Constraint("Horizontal", 11, 2, 12, 2),
    Sketcher.Constraint("Horizontal", 10, 2, 13, 2),
    Sketcher.Constraint("Horizontal", 9, 2, 14, 2),
    Sketcher.Constraint("Horizontal", 13, 2, 16, 2),
    Sketcher.Constraint("Horizontal", 17, 2, 18, 2),
    Sketcher.Constraint("Horizontal", 16, 2, 19, 2),
    Sketcher.Constraint("Horizontal", 15, 2, 20, 2),
    Sketcher.Constraint("Vertical", 0, 2, 2, 2),
    Sketcher.Constraint("Vertical", 2, 2, 6, 2),
    Sketcher.Constraint("Vertical", 1, 2, 7, 2),
    Sketcher.Constraint("Vertical", 6, 2, 8, 2),
    Sketcher.Constraint("Vertical", 5, 2, 9, 2),
    Sketcher.Constraint("Equal", 9, 12),
    Sketcher.Constraint("Equal", 15, 18),
    Sketcher.Constraint("Angle", 1, Q("120 deg")),
    Sketcher.Constraint("DistanceY", -1, 1, 1, 2, Q("32 mm")),
    Sketcher.Constraint("DistanceY", -1, 1, 7, 2, Q("14 mm")),
    Sketcher.Constraint("DistanceY", 0, 2, 2, 2, Q("7 mm")),
    Sketcher.Constraint("DistanceX", 12, 2, 6, 2, Q("24 mm")),
    Sketcher.Constraint("DistanceX", 18, 2, 12, 2, Q("24 mm")),
    Sketcher.Constraint("DistanceX", 0, 2, 0, 1, Q("4.041452 mm")),
])
pocket6 = doc.addObject("PartDesign::Pocket", "Pocket005")
body.addObject(pocket6)
pocket6.Profile = sketch8
pocket6.Length = 3
pocket6.Reversed = True

# Sketch on XZ plane
sketch9 = doc.addObject("Sketcher::SketchObject", "Sketch008")
body.addObject(sketch9)
sketch9.AttachmentSupport = (doc.XZ_Plane, [""])
sketch9.MapMode = "FlatFace"
sketch9.AttachmentOffset = App.Placement(V(0, 0, -9), App.Rotation())
sketch9.addGeometry([
    Part.Circle(V(-14.9, -8.6, 0), V(0, 0, 1), 3.5),
    Part.Circle(V(-14.9, 8.6, 0), V(0, 0, 1), 3.5),
    Part.Circle(V(15.4, 8.6, 0), V(0, 0, 1), 3.5),
    Part.Circle(V(15.4, -7.8, 0), V(0, 0, 1), 3.5),
], False)
sketch9.addConstraint([
    Sketcher.Constraint("Equal", 0, 1),
    Sketcher.Constraint("Equal", 1, 2),
    Sketcher.Constraint("Equal", 2, 3),
    Sketcher.Constraint("Symmetric", 0, 3, 1, 3, -1),
    Sketcher.Constraint("Horizontal", 1, 3, 2, 3),
    Sketcher.Constraint("Vertical", 2, 3, 3, 3),
    Sketcher.Constraint("Diameter", 0, Q("7 mm")),
    Sketcher.Constraint("DistanceY", 0, 3, 1, 3, Q("17.25 mm")),
    Sketcher.Constraint("DistanceX", 0, 3, -1, 1, Q("14.938938 mm")),
    Sketcher.Constraint("DistanceX", -1, 1, 2, 3, Q("15.385611 mm")),
    Sketcher.Constraint("DistanceY", 3, 3, -1, 1, Q("7.800352 mm")),
])
pocket7 = doc.addObject("PartDesign::Pocket", "Pocket006")
body.addObject(pocket7)
pocket7.Profile = sketch9
pocket7.Length = 3
pocket7.Reversed = True

# Sketch on XZ plane
sketch10 = doc.addObject("Sketcher::SketchObject", "Sketch009")
body.addObject(sketch10)
sketch10.AttachmentSupport = (doc.XZ_Plane, [""])
sketch10.MapMode = "FlatFace"
sketch10.AttachmentOffset = App.Placement(V(0, 0, -7), App.Rotation())
sketch10.addGeometry(Part.Circle(V(0, 0, 0), V(0, 0, 1), 4), False)
sketch10.addConstraint([
    Sketcher.Constraint("Coincident", 0, 3, -1, 1),
    Sketcher.Constraint("Diameter", 0, Q("8 mm")),
])
pocket8 = doc.addObject("PartDesign::Pocket", "Pocket007")
body.addObject(pocket8)
pocket8.Profile = sketch10
pocket8.Length = 10
pocket8.Reversed = True

doc.recompute()
